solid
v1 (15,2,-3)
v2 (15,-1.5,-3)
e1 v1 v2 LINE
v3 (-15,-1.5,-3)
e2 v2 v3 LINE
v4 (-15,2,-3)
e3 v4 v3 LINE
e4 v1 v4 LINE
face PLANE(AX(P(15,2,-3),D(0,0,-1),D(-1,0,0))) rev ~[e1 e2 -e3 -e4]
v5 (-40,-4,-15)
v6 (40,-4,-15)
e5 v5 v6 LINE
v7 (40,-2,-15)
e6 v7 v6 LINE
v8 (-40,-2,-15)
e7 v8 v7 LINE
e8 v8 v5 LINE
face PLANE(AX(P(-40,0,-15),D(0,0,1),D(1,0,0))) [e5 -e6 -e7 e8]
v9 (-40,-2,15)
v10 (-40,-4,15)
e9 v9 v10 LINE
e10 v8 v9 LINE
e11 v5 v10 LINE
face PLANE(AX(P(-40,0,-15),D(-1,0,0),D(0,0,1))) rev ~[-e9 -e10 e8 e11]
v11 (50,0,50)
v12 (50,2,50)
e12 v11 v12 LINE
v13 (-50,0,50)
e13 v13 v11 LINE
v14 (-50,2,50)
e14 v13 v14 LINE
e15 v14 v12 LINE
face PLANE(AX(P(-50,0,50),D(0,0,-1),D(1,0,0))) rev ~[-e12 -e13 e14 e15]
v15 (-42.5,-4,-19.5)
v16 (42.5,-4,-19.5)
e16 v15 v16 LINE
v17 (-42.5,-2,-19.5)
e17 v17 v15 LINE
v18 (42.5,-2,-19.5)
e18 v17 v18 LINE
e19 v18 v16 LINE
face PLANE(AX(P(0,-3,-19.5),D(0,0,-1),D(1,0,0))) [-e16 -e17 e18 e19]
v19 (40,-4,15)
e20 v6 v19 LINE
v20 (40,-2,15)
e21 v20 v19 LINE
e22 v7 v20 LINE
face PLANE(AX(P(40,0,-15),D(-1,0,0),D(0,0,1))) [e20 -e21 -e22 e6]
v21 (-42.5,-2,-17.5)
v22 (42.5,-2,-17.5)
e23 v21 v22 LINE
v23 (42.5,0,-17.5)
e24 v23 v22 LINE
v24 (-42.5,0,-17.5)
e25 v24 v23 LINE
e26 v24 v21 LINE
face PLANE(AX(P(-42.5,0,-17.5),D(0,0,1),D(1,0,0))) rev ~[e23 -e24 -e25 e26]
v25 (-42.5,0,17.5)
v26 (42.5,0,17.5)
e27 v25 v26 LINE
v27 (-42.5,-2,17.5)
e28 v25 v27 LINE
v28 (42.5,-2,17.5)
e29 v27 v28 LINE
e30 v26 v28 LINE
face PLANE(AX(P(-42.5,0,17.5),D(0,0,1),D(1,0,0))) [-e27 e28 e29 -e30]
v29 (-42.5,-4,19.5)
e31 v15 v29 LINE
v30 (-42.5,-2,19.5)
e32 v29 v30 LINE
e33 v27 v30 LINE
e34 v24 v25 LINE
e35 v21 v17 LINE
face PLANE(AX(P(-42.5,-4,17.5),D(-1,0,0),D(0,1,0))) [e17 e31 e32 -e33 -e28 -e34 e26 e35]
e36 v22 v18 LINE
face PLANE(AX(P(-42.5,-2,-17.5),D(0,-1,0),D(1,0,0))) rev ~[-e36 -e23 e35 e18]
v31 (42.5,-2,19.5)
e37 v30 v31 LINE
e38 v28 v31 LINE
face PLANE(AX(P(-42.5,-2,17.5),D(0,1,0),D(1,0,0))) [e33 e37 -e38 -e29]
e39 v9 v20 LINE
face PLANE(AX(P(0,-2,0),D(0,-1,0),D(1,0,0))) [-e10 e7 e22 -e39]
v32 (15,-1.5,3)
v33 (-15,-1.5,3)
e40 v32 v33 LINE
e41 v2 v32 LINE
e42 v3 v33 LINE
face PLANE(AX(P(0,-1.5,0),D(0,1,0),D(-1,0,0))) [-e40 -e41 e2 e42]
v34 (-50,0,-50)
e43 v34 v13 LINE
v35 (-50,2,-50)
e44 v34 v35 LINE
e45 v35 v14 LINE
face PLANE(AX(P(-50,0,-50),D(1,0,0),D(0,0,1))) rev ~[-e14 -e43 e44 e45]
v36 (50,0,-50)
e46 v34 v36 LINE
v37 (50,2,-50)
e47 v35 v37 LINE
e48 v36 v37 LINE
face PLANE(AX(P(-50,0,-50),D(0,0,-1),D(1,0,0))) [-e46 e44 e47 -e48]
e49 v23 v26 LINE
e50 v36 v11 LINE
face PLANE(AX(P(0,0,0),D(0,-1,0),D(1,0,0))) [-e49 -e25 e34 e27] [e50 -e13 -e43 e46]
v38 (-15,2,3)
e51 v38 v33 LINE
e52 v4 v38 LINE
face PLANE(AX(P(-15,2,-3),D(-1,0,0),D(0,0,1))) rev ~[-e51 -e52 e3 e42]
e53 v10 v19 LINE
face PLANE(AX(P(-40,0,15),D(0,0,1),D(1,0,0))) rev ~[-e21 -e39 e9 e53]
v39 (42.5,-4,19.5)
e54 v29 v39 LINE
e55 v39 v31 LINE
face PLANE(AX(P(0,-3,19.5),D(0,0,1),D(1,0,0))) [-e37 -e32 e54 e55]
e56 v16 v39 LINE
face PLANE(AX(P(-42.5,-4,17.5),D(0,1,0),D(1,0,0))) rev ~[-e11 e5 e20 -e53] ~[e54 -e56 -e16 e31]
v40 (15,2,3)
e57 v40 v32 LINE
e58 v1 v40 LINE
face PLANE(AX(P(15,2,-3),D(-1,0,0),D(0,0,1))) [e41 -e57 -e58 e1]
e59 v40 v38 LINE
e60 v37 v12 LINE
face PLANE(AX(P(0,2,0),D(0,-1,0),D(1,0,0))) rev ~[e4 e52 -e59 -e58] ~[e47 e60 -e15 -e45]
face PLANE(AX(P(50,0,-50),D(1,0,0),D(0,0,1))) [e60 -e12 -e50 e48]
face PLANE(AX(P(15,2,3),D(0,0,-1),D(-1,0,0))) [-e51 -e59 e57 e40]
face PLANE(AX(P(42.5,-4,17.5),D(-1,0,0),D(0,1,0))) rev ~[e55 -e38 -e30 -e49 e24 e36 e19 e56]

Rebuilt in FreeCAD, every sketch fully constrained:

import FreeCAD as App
import Part
import Sketcher
from FreeCAD import Vector


def add_polygon(sketch, points):
    """Adds a closed chain of lines whose ends are joined by coincident constraints."""
    first, n = sketch.GeometryCount, len(points)
    for a, b in zip(points, points[1:] + points[:1]):
        sketch.addGeometry(Part.LineSegment(App.Vector(*a, 0), App.Vector(*b, 0)), False)
    for i in range(n):
        sketch.addConstraint(Sketcher.Constraint("Coincident", first + i, 2, first + (i + 1) % n, 1))

doc = App.newDocument("Part")
params = doc.addObject("Spreadsheet::Sheet", "Params")
for row, (alias, value) in enumerate([
    ("sketch1_width", "100 mm"),
    ("pad1_length", "2 mm"),
    ("sketch2_width", "85 mm"),
    ("sketch2_width2", "80 mm"),
    ("sketch2_height", "35 mm"),
    ("sketch2_height2", "30 mm"),
    ("pad2_length", "4 mm"),
    ("sketch3_width", "85 mm"),
    ("sketch3_height", "2 mm"),
    ("pad3_length", "2 mm"),
    ("sketch4_width", "85 mm"),
    ("sketch4_height", "2 mm"),
    ("pad4_length", "2 mm"),
    ("sketch5_width", "80 mm"),
    ("sketch5_height", "30 mm"),
    ("pad5_length", "2 mm"),
    ("sketch6_width", "30 mm"),
    ("sketch6_height", "6 mm"),
    ("pocket1_length", "3.5 mm"),
], start=1):
    params.set(f"A{row}", alias)
    params.set(f"B{row}", "=" + value)
    params.setAlias(f"B{row}", alias)

body = doc.addObject("PartDesign::Body", "Body")

# Sketch on XZ plane
sketch1 = doc.addObject("Sketcher::SketchObject", "Sketch")
body.addObject(sketch1)
sketch1.AttachmentSupport = (doc.XZ_Plane, [""])
sketch1.MapMode = "FlatFace"
add_polygon(sketch1, [(-50, 50), (-50, -50), (50, -50), (50, 50)])  # lines 0-3
sketch1.addConstraint(Sketcher.Constraint("Vertical", 0))
sketch1.addConstraint(Sketcher.Constraint("Horizontal", 1))
sketch1.addConstraint(Sketcher.Constraint("Vertical", 2))
sketch1.addConstraint(Sketcher.Constraint("Horizontal", 3))
sketch1.addConstraint(Sketcher.Constraint("Symmetric", 0, 2, 2, 2, -1, 1))
sketch1.addConstraint(Sketcher.Constraint("Equal", 3, 0))
sketch1.addConstraint(Sketcher.Constraint("DistanceX", 1, 1, 1, 2, 100.0))
sketch1.setExpression("Constraints[10]", "Params.sketch1_width")
pad1 = doc.addObject("PartDesign::Pad", "Pad")
body.addObject(pad1)
pad1.Profile = sketch1
pad1.setExpression("Length", "Params.pad1_length")
pad1.Reversed = True

# Sketch on XZ plane
sketch2 = doc.addObject("Sketcher::SketchObject", "Sketch001")
body.addObject(sketch2)
sketch2.AttachmentSupport = (doc.XZ_Plane, [""])
sketch2.MapMode = "FlatFace"
add_polygon(sketch2, [(-42, 18), (-42, -18), (42, -18), (42, 18)])  # lines 0-3
add_polygon(sketch2, [(40, -15), (-40, -15), (-40, 15), (40, 15)])  # lines 4-7
sketch2.addConstraint(Sketcher.Constraint("Vertical", 0))
sketch2.addConstraint(Sketcher.Constraint("Horizontal", 1))
sketch2.addConstraint(Sketcher.Constraint("Vertical", 2))
sketch2.addConstraint(Sketcher.Constraint("Horizontal", 3))
sketch2.addConstraint(Sketcher.Constraint("Horizontal", 4))
sketch2.addConstraint(Sketcher.Constraint("Vertical", 5))
sketch2.addConstraint(Sketcher.Constraint("Horizontal", 6))
sketch2.addConstraint(Sketcher.Constraint("Vertical", 7))
sketch2.addConstraint(Sketcher.Constraint("Symmetric", 0, 2, 2, 2, -1, 1))
sketch2.addConstraint(Sketcher.Constraint("Symmetric", 4, 2, 6, 2, -1, 1))
sketch2.addConstraint(Sketcher.Constraint("DistanceX", 1, 1, 1, 2, 85.0))
sketch2.addConstraint(Sketcher.Constraint("DistanceX", 4, 2, 4, 1, 80.0))
sketch2.addConstraint(Sketcher.Constraint("DistanceY", 0, 2, 0, 1, 35.0))
sketch2.addConstraint(Sketcher.Constraint("DistanceY", 5, 1, 5, 2, 30.0))
sketch2.setExpression("Constraints[18]", "Params.sketch2_width")
sketch2.setExpression("Constraints[19]", "Params.sketch2_width2")
sketch2.setExpression("Constraints[20]", "Params.sketch2_height")
sketch2.setExpression("Constraints[21]", "Params.sketch2_height2")
pad2 = doc.addObject("PartDesign::Pad", "Pad001")
body.addObject(pad2)
pad2.Profile = sketch2
pad2.setExpression("Length", "Params.pad2_length")

# Sketch on XY plane
sketch3 = doc.addObject("Sketcher::SketchObject", "Sketch002")
body.addObject(sketch3)
sketch3.AttachmentSupport = (doc.XY_Plane, [""])
sketch3.MapMode = "FlatFace"
sketch3.AttachmentOffset = App.Placement(Vector(0, 0, -17.5), App.Rotation())
add_polygon(sketch3, [(-42.5, -4), (-42.5, -2), (42.5, -2), (42.5, -4)])  # lines 0-3
sketch3.addConstraint(Sketcher.Constraint("Vertical", 0))
sketch3.addConstraint(Sketcher.Constraint("Horizontal", 1))
sketch3.addConstraint(Sketcher.Constraint("Vertical", 2))
sketch3.addConstraint(Sketcher.Constraint("Horizontal", 3))
sketch3.addConstraint(Sketcher.Constraint("DistanceX", 1, 1, 1, 2, 85.0))
sketch3.addConstraint(Sketcher.Constraint("DistanceY", 0, 1, 0, 2, 2.0))
sketch3.addConstraint(Sketcher.Constraint("DistanceY", 0, 2, -1, 1, 2.0))
sketch3.addConstraint(Sketcher.Constraint("DistanceX", 0, 2, -1, 1, 42.5))
sketch3.setExpression("Constraints[8]", "Params.sketch3_width")
sketch3.setExpression("Constraints[9]", "Params.sketch3_height")
pad3 = doc.addObject("PartDesign::Pad", "Pad002")
body.addObject(pad3)
pad3.Profile = sketch3
pad3.setExpression("Length", "Params.pad3_length")
pad3.Reversed = True

# Sketch on XY plane
sketch4 = doc.addObject("Sketcher::SketchObject", "Sketch003")
body.addObject(sketch4)
sketch4.AttachmentSupport = (doc.XY_Plane, [""])
sketch4.MapMode = "FlatFace"
sketch4.AttachmentOffset = App.Placement(Vector(0, 0, 17.5), App.Rotation())
add_polygon(sketch4, [(-42.5, -2), (-42.5, -4), (42.5, -4), (42.5, -2)])  # lines 0-3
sketch4.addConstraint(Sketcher.Constraint("Vertical", 0))
sketch4.addConstraint(Sketcher.Constraint("Horizontal", 1))
sketch4.addConstraint(Sketcher.Constraint("Vertical", 2))
sketch4.addConstraint(Sketcher.Constraint("Horizontal", 3))
sketch4.addConstraint(Sketcher.Constraint("DistanceX", 1, 1, 1, 2, 85.0))
sketch4.addConstraint(Sketcher.Constraint("DistanceY", 0, 2, 0, 1, 2.0))
sketch4.addConstraint(Sketcher.Constraint("DistanceY", 0, 2, -1, 1, 4.0))
sketch4.addConstraint(Sketcher.Constraint("DistanceX", 0, 2, -1, 1, 42.5))
sketch4.setExpression("Constraints[8]", "Params.sketch4_width")
sketch4.setExpression("Constraints[9]", "Params.sketch4_height")
pad4 = doc.addObject("PartDesign::Pad", "Pad003")
body.addObject(pad4)
pad4.Profile = sketch4
pad4.setExpression("Length", "Params.pad4_length")

# Sketch on XZ plane
sketch5 = doc.addObject("Sketcher::SketchObject", "Sketch004")
body.addObject(sketch5)
sketch5.AttachmentSupport = (doc.XZ_Plane, [""])
sketch5.MapMode = "FlatFace"
add_polygon(sketch5, [(-40, 15), (-40, -15), (40, -15), (40, 15)])  # lines 0-3
sketch5.addConstraint(Sketcher.Constraint("Vertical", 0))
sketch5.addConstraint(Sketcher.Constraint("Horizontal", 1))
sketch5.addConstraint(Sketcher.Constraint("Vertical", 2))
sketch5.addConstraint(Sketcher.Constraint("Horizontal", 3))
sketch5.addConstraint(Sketcher.Constraint("Symmetric", 0, 2, 2, 2, -1, 1))
sketch5.addConstraint(Sketcher.Constraint("DistanceX", 1, 1, 1, 2, 80.0))
sketch5.addConstraint(Sketcher.Constraint("DistanceY", 0, 2, 0, 1, 30.0))
sketch5.setExpression("Constraints[9]", "Params.sketch5_width")
sketch5.setExpression("Constraints[10]", "Params.sketch5_height")
pad5 = doc.addObject("PartDesign::Pad", "Pad004")
body.addObject(pad5)
pad5.Profile = sketch5
pad5.setExpression("Length", "Params.pad5_length")

# Sketch on XZ plane
sketch6 = doc.addObject("Sketcher::SketchObject", "Sketch005")
body.addObject(sketch6)
sketch6.AttachmentSupport = (doc.XZ_Plane, [""])
sketch6.MapMode = "FlatFace"
sketch6.AttachmentOffset = App.Placement(Vector(0, 0, -2), App.Rotation())
add_polygon(sketch6, [(15, 3), (15, -3), (-15, -3), (-15, 3)])  # lines 0-3
sketch6.addConstraint(Sketcher.Constraint("Vertical", 0))
sketch6.addConstraint(Sketcher.Constraint("Horizontal", 1))
sketch6.addConstraint(Sketcher.Constraint("Vertical", 2))
sketch6.addConstraint(Sketcher.Constraint("Horizontal", 3))
sketch6.addConstraint(Sketcher.Constraint("Symmetric", 0, 2, 2, 2, -1, 1))
sketch6.addConstraint(Sketcher.Constraint("DistanceX", 1, 2, 1, 1, 30.0))
sketch6.addConstraint(Sketcher.Constraint("DistanceY", 0, 2, 0, 1, 6.0))
sketch6.setExpression("Constraints[9]", "Params.sketch6_width")
sketch6.setExpression("Constraints[10]", "Params.sketch6_height")
pocket1 = doc.addObject("PartDesign::Pocket", "Pocket")
body.addObject(pocket1)
pocket1.Profile = sketch6
pocket1.setExpression("Length", "Params.pocket1_length")
pocket1.Reversed = True

doc.recompute()
